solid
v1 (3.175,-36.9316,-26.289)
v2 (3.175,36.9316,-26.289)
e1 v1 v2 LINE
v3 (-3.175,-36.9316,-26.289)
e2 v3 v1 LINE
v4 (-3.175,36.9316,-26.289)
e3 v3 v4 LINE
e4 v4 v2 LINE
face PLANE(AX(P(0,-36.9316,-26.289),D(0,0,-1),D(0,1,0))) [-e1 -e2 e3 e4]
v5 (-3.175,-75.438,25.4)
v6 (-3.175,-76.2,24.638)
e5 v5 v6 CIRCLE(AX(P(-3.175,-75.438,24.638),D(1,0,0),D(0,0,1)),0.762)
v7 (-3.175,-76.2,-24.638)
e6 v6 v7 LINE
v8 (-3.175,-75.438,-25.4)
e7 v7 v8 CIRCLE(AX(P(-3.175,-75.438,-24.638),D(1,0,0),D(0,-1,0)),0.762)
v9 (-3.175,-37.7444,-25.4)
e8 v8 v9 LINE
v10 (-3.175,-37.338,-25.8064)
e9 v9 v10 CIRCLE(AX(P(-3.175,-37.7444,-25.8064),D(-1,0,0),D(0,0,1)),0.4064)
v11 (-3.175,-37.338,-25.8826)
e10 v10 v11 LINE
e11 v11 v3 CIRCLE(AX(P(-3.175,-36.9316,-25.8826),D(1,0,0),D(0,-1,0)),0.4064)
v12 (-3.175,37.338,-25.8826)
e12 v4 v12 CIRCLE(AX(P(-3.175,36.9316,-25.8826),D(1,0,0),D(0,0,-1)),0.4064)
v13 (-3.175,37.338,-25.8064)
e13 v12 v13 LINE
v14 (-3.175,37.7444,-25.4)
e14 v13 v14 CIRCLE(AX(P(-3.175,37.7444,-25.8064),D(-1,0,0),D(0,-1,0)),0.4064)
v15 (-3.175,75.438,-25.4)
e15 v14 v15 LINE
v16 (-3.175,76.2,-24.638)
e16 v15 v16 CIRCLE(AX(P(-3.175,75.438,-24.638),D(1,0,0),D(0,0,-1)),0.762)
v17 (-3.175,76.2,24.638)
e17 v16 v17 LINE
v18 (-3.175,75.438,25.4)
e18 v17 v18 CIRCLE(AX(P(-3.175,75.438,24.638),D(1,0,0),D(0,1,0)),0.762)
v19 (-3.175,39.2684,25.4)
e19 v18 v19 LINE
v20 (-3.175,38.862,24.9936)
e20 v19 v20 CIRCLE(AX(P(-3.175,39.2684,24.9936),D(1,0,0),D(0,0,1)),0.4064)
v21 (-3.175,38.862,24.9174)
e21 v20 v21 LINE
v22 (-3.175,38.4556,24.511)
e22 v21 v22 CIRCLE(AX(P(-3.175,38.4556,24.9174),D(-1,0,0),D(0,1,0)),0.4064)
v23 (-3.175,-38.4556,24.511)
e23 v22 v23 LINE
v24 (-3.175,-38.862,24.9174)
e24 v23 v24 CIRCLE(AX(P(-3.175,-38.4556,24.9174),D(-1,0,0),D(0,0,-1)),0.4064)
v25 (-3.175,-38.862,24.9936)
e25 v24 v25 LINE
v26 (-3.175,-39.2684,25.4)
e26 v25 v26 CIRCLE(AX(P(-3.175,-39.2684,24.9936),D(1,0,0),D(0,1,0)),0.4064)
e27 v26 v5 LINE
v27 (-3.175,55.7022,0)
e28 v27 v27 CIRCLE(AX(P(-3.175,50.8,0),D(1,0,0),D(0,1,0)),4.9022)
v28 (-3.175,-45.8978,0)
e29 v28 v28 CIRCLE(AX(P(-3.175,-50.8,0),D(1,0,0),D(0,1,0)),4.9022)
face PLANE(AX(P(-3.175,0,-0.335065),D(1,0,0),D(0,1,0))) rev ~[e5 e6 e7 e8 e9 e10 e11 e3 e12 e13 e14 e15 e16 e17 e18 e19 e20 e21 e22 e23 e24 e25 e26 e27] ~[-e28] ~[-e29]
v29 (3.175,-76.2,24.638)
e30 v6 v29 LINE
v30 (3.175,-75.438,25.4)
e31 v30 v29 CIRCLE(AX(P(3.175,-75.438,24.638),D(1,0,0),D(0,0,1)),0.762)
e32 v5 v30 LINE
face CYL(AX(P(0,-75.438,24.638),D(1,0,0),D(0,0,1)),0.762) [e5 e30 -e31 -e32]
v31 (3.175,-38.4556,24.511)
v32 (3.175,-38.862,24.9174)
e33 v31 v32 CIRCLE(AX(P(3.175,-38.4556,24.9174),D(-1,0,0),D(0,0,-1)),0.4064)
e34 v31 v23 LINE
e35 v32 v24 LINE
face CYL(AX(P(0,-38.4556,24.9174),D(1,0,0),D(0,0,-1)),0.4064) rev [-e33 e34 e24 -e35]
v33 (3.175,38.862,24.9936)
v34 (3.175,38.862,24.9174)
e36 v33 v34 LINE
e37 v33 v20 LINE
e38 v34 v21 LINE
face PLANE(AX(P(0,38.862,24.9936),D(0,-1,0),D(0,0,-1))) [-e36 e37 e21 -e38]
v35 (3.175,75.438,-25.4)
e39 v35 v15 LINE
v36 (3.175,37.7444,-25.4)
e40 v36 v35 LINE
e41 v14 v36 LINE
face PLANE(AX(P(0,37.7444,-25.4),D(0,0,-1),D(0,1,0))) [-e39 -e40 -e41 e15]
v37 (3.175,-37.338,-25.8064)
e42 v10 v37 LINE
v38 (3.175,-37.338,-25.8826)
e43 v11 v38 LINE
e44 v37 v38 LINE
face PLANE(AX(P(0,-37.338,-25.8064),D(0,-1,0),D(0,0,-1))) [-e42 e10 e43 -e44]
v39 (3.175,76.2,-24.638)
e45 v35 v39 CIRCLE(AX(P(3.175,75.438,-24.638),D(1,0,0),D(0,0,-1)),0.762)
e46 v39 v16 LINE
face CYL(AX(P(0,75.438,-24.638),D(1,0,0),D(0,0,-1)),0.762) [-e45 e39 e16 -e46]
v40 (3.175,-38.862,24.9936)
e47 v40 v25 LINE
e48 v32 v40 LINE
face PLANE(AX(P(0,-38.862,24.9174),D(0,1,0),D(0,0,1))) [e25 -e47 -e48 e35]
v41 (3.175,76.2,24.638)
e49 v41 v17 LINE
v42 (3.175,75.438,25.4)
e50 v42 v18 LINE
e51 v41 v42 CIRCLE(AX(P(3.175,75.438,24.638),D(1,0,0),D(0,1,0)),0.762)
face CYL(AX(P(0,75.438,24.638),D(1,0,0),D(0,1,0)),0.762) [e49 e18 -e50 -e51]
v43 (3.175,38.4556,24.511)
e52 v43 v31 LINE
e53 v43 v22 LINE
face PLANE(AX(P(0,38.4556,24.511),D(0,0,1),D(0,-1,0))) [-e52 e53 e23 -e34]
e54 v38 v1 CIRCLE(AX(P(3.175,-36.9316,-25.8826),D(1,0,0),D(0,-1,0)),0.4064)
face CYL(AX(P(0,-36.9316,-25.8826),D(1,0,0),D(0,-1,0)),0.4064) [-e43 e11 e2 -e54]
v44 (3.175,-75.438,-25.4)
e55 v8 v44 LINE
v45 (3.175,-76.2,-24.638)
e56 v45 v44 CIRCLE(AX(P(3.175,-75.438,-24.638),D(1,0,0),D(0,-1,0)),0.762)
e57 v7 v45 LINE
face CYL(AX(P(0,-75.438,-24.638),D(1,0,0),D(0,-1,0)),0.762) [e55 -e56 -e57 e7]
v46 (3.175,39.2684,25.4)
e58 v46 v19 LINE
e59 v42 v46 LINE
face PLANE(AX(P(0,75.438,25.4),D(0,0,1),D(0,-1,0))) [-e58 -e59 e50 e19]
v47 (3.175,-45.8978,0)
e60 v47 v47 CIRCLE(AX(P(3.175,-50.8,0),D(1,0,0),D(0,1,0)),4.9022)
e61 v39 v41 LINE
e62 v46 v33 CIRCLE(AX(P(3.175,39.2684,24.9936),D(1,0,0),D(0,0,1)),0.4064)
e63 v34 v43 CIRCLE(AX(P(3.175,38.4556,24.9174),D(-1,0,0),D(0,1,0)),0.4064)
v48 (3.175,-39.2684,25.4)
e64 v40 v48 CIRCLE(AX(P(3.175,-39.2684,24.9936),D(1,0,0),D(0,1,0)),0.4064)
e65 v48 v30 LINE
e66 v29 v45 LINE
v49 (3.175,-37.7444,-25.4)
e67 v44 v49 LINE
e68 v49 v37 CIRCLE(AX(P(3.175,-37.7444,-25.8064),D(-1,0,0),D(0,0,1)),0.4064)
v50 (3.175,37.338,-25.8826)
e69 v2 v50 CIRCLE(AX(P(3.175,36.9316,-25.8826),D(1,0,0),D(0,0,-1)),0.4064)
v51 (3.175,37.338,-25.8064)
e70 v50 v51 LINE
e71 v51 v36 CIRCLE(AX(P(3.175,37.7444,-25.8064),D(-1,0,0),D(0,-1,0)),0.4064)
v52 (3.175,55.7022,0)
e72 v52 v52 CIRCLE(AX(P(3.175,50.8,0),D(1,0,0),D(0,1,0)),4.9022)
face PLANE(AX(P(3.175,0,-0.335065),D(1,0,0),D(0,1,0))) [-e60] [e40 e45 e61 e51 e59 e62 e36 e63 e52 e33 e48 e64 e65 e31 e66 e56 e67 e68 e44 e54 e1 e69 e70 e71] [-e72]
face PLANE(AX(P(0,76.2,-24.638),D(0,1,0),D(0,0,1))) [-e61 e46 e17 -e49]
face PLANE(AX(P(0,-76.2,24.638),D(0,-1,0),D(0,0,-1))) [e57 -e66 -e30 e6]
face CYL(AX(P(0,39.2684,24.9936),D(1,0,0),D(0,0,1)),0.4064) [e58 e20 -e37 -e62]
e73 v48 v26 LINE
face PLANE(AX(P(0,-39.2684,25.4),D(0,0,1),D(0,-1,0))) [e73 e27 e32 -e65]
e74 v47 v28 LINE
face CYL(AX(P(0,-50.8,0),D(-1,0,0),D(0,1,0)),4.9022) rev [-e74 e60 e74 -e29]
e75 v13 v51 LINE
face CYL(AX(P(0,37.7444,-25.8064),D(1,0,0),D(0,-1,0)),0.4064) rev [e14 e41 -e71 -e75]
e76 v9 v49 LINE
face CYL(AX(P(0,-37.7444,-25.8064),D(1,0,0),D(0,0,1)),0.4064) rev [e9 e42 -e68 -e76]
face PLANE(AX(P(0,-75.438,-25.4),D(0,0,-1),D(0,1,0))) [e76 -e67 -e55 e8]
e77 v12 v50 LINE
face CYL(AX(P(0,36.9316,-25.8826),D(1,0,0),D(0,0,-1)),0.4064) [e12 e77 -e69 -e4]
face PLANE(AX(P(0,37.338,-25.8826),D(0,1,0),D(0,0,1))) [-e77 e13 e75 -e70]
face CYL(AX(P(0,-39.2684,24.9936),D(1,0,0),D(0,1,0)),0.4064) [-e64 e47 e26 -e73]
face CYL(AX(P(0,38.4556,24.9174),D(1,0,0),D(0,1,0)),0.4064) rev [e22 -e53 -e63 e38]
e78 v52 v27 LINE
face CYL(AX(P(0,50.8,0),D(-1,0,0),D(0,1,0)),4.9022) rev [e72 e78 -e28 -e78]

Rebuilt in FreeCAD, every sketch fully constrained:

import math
import FreeCAD as App
import Part
import Sketcher
from FreeCAD import Vector
Q = App.Units.Quantity

doc = App.newDocument("Part")
params = doc.addObject("Spreadsheet::Sheet", "Params")
for row, (alias, value) in enumerate([
    ("sketch1_radius", "0.03 in"),
    ("sketch1_diameter", "0.386 in"),
    ("sketch1_radius2", "0.016 in"),
    ("sketch1_height", "0.003 in"),
    ("pad1_length", "0.25 in"),
], start=1):
    params.set(f"A{row}", alias)
    params.set(f"B{row}", "=" + value)
    params.setAlias(f"B{row}", alias)

body = doc.addObject("PartDesign::Body", "Body")

# Sketch on YZ plane
sketch1 = body.newObject("Sketcher::SketchObject", "Sketch")
sketch1.AttachmentSupport = (doc.getObject("YZ_Plane"), [""])
sketch1.MapMode = "FlatFace"
sketch1.addGeometry([
    Part.LineSegment(Vector(-39.27, 25.4, 0), Vector(-75.44, 25.4, 0)),  # 0
    Part.ArcOfCircle(Part.Circle(Vector(-75.44, 24.64, 0), Vector(0, 0, 1), 0.76), math.radians(90), math.radians(180)),  # 1
    Part.LineSegment(Vector(-76.2, 24.64, 0), Vector(-76.2, -24.64, 0)),  # 2
    Part.ArcOfCircle(Part.Circle(Vector(-75.44, -24.64, 0), Vector(0, 0, 1), 0.76), math.radians(180), math.radians(270)),  # 3
    Part.LineSegment(Vector(-75.44, -25.4, 0), Vector(-37.74, -25.4, 0)),  # 4
    Part.ArcOfCircle(Part.Circle(Vector(-37.74, -25.81, 0), Vector(0, 0, 1), 0.41), math.radians(0), math.radians(90)),  # 5
    Part.LineSegment(Vector(-37.34, -25.81, 0), Vector(-37.34, -25.88, 0)),  # 6
    Part.ArcOfCircle(Part.Circle(Vector(-36.93, -25.88, 0), Vector(0, 0, 1), 0.41), math.radians(180), math.radians(270)),  # 7
    Part.LineSegment(Vector(-36.93, -26.29, 0), Vector(36.93, -26.29, 0)),  # 8
    Part.ArcOfCircle(Part.Circle(Vector(36.93, -25.88, 0), Vector(0, 0, 1), 0.41), math.radians(-90), math.radians(0)),  # 9
    Part.LineSegment(Vector(37.34, -25.88, 0), Vector(37.34, -25.81, 0)),  # 10
    Part.ArcOfCircle(Part.Circle(Vector(37.74, -25.81, 0), Vector(0, 0, 1), 0.41), math.radians(90), math.radians(180)),  # 11
    Part.LineSegment(Vector(37.74, -25.4, 0), Vector(75.44, -25.4, 0)),  # 12
    Part.ArcOfCircle(Part.Circle(Vector(75.44, -24.64, 0), Vector(0, 0, 1), 0.76), math.radians(-90), math.radians(0)),  # 13
    Part.LineSegment(Vector(76.2, -24.64, 0), Vector(76.2, 24.64, 0)),  # 14
    Part.ArcOfCircle(Part.Circle(Vector(75.44, 24.64, 0), Vector(0, 0, 1), 0.76), math.radians(0), math.radians(90)),  # 15
    Part.LineSegment(Vector(75.44, 25.4, 0), Vector(39.27, 25.4, 0)),  # 16
    Part.ArcOfCircle(Part.Circle(Vector(39.27, 24.99, 0), Vector(0, 0, 1), 0.41), math.radians(90), math.radians(180)),  # 17
    Part.LineSegment(Vector(38.86, 24.99, 0), Vector(38.86, 24.92, 0)),  # 18
    Part.ArcOfCircle(Part.Circle(Vector(38.46, 24.92, 0), Vector(0, 0, 1), 0.41), math.radians(-90), math.radians(0)),  # 19
    Part.LineSegment(Vector(38.46, 24.51, 0), Vector(-38.46, 24.51, 0)),  # 20
    Part.ArcOfCircle(Part.Circle(Vector(-38.46, 24.92, 0), Vector(0, 0, 1), 0.41), math.radians(180), math.radians(270)),  # 21
    Part.LineSegment(Vector(-38.86, 24.92, 0), Vector(-38.86, 24.99, 0)),  # 22
    Part.ArcOfCircle(Part.Circle(Vector(-39.27, 24.99, 0), Vector(0, 0, 1), 0.41), math.radians(0), math.radians(90)),  # 23
    Part.Circle(Vector(-50.8, 0, 0), Vector(0, 0, 1), 4.9),  # 24
    Part.Circle(Vector(50.8, 0, 0), Vector(0, 0, 1), 4.9),  # 25
], False)
sketch1.addConstraint([
    Sketcher.Constraint("Tangent", 0, 2, 1, 1),
    Sketcher.Constraint("Tangent", 1, 2, 2, 1),
    Sketcher.Constraint("Tangent", 2, 2, 3, 1),
    Sketcher.Constraint("Tangent", 3, 2, 4, 1),
    Sketcher.Constraint("Tangent", 4, 2, 5, 2),
    Sketcher.Constraint("Tangent", 5, 1, 6, 1),
    Sketcher.Constraint("Tangent", 6, 2, 7, 1),
    Sketcher.Constraint("Tangent", 7, 2, 8, 1),
    Sketcher.Constraint("Tangent", 8, 2, 9, 1),
    Sketcher.Constraint("Tangent", 9, 2, 10, 1),
    Sketcher.Constraint("Tangent", 10, 2, 11, 2),
    Sketcher.Constraint("Tangent", 11, 1, 12, 1),
    Sketcher.Constraint("Tangent", 12, 2, 13, 1),
    Sketcher.Constraint("Tangent", 13, 2, 14, 1),
    Sketcher.Constraint("Tangent", 14, 2, 15, 1),
    Sketcher.Constraint("Tangent", 15, 2, 16, 1),
    Sketcher.Constraint("Tangent", 16, 2, 17, 1),
    Sketcher.Constraint("Tangent", 17, 2, 18, 1),
    Sketcher.Constraint("Tangent", 18, 2, 19, 2),
    Sketcher.Constraint("Tangent", 19, 1, 20, 1),
    Sketcher.Constraint("Tangent", 20, 2, 21, 2),
    Sketcher.Constraint("Tangent", 21, 1, 22, 1),
    Sketcher.Constraint("Tangent", 22, 2, 23, 1),
    Sketcher.Constraint("Tangent", 23, 2, 0, 1),
    Sketcher.Constraint("Horizontal", 0),
    Sketcher.Constraint("Vertical", 2),
    Sketcher.Constraint("Horizontal", 4),
    Sketcher.Constraint("Vertical", 6),
    Sketcher.Constraint("Horizontal", 8),
    Sketcher.Constraint("Vertical", 10),
    Sketcher.Constraint("Horizontal", 12),
    Sketcher.Constraint("Vertical", 14),
    Sketcher.Constraint("Horizontal", 16),
    Sketcher.Constraint("Vertical", 18),
    Sketcher.Constraint("Horizontal", 20),
    Sketcher.Constraint("Vertical", 22),
    Sketcher.Constraint("Equal", 1, 3),
    Sketcher.Constraint("Equal", 5, 7),
    Sketcher.Constraint("Equal", 7, 9),
    Sketcher.Constraint("Equal", 9, 11),
    Sketcher.Constraint("Equal", 3, 13),
    Sketcher.Constraint("Equal", 13, 15),
    Sketcher.Constraint("Equal", 11, 17),
    Sketcher.Constraint("Equal", 17, 19),
    Sketcher.Constraint("Equal", 19, 21),
    Sketcher.Constraint("Equal", 21, 23),
    Sketcher.Constraint("Equal", 24, 25),
    Sketcher.Constraint("Symmetric", 1, 3, 13, 3, -1, 1),
    Sketcher.Constraint("Symmetric", 24, 3, 25, 3, -1, 1),
    Sketcher.Constraint("Symmetric", 5, 3, 11, 3, -2),
    Sketcher.Constraint("Symmetric", 17, 3, 23, 3, -2),
    Sketcher.Constraint("PointOnObject", 24, 3, -1),
    Sketcher.Constraint("Equal", 10, 18),
    Sketcher.Constraint("Radius", 1, Q("0.03 in")),
    Sketcher.Constraint("Diameter", 24, Q("0.386 in")),
    Sketcher.Constraint("DistanceX", 24, 3, -1, 1, Q("2 in")),
    Sketcher.Constraint("DistanceY", -1, 1, 0, 2, Q("1 in")),
    Sketcher.Constraint("DistanceX", 1, 2, -1, 1, Q("3 in")),
    Sketcher.Constraint("Radius", 5, Q("0.016 in")),
    Sketcher.Constraint("DistanceX", 7, 3, 17, 3, Q("3 in")),
    Sketcher.Constraint("DistanceX", 3, 2, 5, 1, Q("1.5 in")),
    Sketcher.Constraint("DistanceY", 6, 2, 6, 1, Q("0.003 in")),
])
sketch1.setExpression("Constraints[53]", "Params.sketch1_radius")
sketch1.setExpression("Constraints[54]", "Params.sketch1_diameter")
sketch1.setExpression("Constraints[58]", "Params.sketch1_radius2")
sketch1.setExpression("Constraints[61]", "Params.sketch1_height")
pad1 = body.newObject("PartDesign::Pad", "Pad")
pad1.Profile = sketch1
pad1.setExpression("Length", "Params.pad1_length")
pad1.Midplane = True

doc.recompute()
